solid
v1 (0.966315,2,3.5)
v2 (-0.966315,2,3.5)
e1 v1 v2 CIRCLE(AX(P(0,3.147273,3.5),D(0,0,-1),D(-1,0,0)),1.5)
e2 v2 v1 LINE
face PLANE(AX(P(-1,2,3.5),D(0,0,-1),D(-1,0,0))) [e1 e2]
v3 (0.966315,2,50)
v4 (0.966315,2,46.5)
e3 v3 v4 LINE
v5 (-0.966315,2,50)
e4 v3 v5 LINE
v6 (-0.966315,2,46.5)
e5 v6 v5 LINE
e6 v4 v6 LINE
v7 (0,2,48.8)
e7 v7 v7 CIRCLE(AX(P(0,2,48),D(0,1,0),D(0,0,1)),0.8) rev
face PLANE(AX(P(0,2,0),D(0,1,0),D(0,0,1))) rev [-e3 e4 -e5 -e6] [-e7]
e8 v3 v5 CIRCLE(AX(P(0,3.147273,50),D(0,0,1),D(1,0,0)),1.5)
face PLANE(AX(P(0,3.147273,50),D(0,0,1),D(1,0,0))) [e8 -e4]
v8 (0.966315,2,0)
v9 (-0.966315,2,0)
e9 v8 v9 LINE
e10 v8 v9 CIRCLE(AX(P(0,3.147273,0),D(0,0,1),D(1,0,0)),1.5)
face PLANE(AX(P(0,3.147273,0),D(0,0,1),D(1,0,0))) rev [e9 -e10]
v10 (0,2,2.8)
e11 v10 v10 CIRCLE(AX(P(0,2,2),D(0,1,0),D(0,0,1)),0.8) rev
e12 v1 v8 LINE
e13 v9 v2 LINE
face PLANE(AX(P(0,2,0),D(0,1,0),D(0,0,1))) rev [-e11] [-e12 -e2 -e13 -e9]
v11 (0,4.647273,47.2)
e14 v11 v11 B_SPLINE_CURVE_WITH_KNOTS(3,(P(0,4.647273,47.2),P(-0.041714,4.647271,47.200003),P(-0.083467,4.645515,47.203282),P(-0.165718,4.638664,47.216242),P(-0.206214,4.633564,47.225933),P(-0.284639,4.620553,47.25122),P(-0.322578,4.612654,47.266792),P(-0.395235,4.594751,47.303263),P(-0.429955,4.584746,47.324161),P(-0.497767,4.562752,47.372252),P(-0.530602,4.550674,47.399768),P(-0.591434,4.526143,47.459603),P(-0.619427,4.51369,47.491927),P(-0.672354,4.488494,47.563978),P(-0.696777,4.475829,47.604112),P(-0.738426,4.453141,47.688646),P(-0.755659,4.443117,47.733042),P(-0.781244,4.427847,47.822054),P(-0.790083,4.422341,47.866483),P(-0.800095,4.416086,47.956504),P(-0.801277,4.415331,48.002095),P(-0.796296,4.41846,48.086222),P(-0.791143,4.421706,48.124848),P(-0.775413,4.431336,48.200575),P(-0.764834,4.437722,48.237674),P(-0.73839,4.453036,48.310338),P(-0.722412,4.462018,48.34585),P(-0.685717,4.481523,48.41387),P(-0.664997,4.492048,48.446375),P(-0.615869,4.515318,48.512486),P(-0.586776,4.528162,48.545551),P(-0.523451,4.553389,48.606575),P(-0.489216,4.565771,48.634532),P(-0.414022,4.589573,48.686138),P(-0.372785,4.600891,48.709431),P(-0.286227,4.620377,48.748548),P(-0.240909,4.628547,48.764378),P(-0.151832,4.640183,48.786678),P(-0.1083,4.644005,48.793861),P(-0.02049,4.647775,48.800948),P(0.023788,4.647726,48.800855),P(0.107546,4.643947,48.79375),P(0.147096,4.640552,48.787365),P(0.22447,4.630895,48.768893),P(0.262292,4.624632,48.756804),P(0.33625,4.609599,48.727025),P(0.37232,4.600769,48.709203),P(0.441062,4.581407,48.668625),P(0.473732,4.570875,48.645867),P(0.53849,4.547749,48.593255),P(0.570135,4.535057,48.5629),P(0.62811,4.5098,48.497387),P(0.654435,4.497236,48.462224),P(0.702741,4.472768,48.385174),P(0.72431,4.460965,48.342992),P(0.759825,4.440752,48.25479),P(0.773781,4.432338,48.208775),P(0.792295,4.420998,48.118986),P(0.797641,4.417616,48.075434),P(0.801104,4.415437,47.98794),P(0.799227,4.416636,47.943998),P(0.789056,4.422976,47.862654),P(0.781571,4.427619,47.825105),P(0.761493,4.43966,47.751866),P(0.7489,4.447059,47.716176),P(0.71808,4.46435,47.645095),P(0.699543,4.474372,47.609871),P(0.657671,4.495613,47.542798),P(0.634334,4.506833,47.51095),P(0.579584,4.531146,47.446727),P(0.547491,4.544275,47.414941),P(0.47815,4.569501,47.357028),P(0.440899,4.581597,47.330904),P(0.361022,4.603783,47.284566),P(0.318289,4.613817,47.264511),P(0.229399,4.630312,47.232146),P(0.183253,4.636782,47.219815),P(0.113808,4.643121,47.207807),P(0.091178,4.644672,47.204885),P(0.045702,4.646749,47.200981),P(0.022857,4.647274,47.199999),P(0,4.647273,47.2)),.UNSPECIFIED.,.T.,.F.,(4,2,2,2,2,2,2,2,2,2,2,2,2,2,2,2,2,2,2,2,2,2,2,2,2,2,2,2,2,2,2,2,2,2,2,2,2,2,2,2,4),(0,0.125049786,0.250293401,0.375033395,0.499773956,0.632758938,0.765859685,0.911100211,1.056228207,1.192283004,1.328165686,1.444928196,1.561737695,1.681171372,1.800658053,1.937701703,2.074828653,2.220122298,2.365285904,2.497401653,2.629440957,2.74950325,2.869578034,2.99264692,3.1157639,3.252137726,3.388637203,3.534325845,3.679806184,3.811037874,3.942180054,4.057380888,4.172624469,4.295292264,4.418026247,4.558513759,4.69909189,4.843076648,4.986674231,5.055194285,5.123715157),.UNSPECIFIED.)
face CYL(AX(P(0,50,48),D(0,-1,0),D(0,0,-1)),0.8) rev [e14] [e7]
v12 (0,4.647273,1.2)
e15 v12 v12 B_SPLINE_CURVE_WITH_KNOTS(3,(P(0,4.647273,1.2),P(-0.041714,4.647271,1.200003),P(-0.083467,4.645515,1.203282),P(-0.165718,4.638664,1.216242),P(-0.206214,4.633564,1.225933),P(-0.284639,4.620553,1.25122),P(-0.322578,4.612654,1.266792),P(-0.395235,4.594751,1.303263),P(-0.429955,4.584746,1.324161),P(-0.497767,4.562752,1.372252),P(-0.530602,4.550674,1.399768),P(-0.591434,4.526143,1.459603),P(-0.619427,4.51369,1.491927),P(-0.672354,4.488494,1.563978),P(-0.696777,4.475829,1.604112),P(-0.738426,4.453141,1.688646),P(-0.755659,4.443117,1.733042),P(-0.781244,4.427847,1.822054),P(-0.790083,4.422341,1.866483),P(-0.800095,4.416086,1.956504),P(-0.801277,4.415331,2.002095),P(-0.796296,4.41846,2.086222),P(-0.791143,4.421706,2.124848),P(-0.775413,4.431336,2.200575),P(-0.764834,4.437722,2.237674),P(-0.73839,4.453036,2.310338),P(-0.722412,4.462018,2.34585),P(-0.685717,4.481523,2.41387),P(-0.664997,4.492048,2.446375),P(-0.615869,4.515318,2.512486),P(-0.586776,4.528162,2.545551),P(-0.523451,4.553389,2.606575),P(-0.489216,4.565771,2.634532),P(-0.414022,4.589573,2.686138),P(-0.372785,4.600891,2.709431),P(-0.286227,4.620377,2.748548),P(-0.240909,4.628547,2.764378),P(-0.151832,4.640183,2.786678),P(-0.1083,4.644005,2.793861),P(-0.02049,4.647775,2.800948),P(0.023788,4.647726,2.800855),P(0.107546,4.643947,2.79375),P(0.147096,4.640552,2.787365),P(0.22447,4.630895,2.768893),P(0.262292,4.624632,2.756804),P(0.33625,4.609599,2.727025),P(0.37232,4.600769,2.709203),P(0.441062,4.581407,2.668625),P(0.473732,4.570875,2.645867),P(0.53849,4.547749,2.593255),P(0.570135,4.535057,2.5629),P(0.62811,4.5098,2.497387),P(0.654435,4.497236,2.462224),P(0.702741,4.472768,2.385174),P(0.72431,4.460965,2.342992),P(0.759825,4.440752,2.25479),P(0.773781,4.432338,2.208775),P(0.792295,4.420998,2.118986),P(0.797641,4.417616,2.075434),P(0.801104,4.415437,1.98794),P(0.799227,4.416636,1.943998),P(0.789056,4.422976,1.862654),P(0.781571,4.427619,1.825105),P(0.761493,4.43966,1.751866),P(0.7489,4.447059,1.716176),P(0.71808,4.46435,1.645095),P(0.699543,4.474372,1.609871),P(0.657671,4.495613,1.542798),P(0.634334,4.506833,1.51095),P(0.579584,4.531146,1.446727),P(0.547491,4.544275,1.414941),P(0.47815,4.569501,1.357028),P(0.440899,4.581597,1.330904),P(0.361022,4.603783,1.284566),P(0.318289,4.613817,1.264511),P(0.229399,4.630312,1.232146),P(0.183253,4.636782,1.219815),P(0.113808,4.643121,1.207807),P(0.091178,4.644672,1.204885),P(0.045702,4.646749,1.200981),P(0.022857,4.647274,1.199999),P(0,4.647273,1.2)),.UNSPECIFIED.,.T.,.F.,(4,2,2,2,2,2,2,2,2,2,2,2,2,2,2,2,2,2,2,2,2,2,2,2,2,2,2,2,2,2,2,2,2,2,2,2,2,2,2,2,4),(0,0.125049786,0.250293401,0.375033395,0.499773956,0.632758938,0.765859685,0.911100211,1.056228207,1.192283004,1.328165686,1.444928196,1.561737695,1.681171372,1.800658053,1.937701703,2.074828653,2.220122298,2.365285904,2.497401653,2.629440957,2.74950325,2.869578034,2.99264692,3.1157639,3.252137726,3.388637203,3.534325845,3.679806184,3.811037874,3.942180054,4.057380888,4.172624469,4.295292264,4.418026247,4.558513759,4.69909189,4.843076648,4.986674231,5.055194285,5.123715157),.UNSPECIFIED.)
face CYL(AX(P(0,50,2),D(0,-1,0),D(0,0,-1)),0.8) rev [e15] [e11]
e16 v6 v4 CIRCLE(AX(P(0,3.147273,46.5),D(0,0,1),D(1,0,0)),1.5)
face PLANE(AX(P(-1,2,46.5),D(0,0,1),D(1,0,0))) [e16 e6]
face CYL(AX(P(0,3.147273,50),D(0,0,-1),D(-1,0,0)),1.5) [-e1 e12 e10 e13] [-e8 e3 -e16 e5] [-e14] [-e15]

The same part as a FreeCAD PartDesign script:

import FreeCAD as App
import Part
import Sketcher

doc = App.newDocument("Part")
body = doc.addObject("PartDesign::Body", "Body")

# Sketch on XY plane
sketch1 = doc.addObject("Sketcher::SketchObject", "Sketch")
body.addObject(sketch1)
sketch1.AttachmentSupport = (doc.XY_Plane, [""])
sketch1.MapMode = "FlatFace"
sketch1.addGeometry(Part.Circle(App.Vector(0, 3.1, 0), App.Vector(0, 0, 1), 1.5), False)
sketch1.addConstraint(Sketcher.Constraint("PointOnObject", 0, 3, -2))
sketch1.addConstraint(Sketcher.Constraint("Diameter", 0, 3.0))
sketch1.addConstraint(Sketcher.Constraint("DistanceY", -1, 1, 0, 3, 3.147273))
pad1 = doc.addObject("PartDesign::Pad", "Pad")
body.addObject(pad1)
pad1.Profile = sketch1
pad1.Length = 50

# Sketch on XZ plane
sketch2 = doc.addObject("Sketcher::SketchObject", "Sketch001")
body.addObject(sketch2)
sketch2.AttachmentSupport = (doc.XZ_Plane, [""])
sketch2.MapMode = "FlatFace"
sketch2.addGeometry(Part.LineSegment(App.Vector(-1, 46.5, 0), App.Vector(-1, 51, 0)), False)
sketch2.addGeometry(Part.LineSegment(App.Vector(-1, 51, 0), App.Vector(1, 51, 0)), False)
sketch2.addGeometry(Part.LineSegment(App.Vector(1, 51, 0), App.Vector(1, 46.5, 0)), False)
sketch2.addGeometry(Part.LineSegment(App.Vector(1, 46.5, 0), App.Vector(-1, 46.5, 0)), False)
sketch2.addGeometry(Part.LineSegment(App.Vector(-1, -1, 0), App.Vector(-1, 3.5, 0)), False)
sketch2.addGeometry(Part.LineSegment(App.Vector(-1, 3.5, 0), App.Vector(1, 3.5, 0)), False)
sketch2.addGeometry(Part.LineSegment(App.Vector(1, 3.5, 0), App.Vector(1, -1, 0)), False)
sketch2.addGeometry(Part.LineSegment(App.Vector(1, -1, 0), App.Vector(-1, -1, 0)), False)
sketch2.addConstraint(Sketcher.Constraint("Coincident", 0, 2, 1, 1))
sketch2.addConstraint(Sketcher.Constraint("Coincident", 1, 2, 2, 1))
sketch2.addConstraint(Sketcher.Constraint("Coincident", 2, 2, 3, 1))
sketch2.addConstraint(Sketcher.Constraint("Coincident", 3, 2, 0, 1))
sketch2.addConstraint(Sketcher.Constraint("Coincident", 4, 2, 5, 1))
sketch2.addConstraint(Sketcher.Constraint("Coincident", 5, 2, 6, 1))
sketch2.addConstraint(Sketcher.Constraint("Coincident", 6, 2, 7, 1))
sketch2.addConstraint(Sketcher.Constraint("Coincident", 7, 2, 4, 1))
sketch2.addConstraint(Sketcher.Constraint("Vertical", 0))
sketch2.addConstraint(Sketcher.Constraint("Horizontal", 1))
sketch2.addConstraint(Sketcher.Constraint("Vertical", 2))
sketch2.addConstraint(Sketcher.Constraint("Horizontal", 3))
sketch2.addConstraint(Sketcher.Constraint("Vertical", 4))
sketch2.addConstraint(Sketcher.Constraint("Horizontal", 5))
sketch2.addConstraint(Sketcher.Constraint("Vertical", 6))
sketch2.addConstraint(Sketcher.Constraint("Horizontal", 7))
sketch2.addConstraint(Sketcher.Constraint("Vertical", 3, 2, 4, 2))
sketch2.addConstraint(Sketcher.Constraint("Vertical", 2, 2, 5, 2))
sketch2.addConstraint(Sketcher.Constraint("Equal", 2, 4))
sketch2.addConstraint(Sketcher.Constraint("DistanceX", 1, 1, 1, 2, 2.0))
sketch2.addConstraint(Sketcher.Constraint("DistanceY", 0, 1, 0, 2, 4.5))
sketch2.addConstraint(Sketcher.Constraint("DistanceX", 0, 2, -1, 1, 1.0))
sketch2.addConstraint(Sketcher.Constraint("DistanceY", -1, 1, 0, 2, 51.0))
sketch2.addConstraint(Sketcher.Constraint("DistanceY", 6, 2, -1, 1, 1.0))
pocket1 = doc.addObject("PartDesign::Pocket", "Pocket")
body.addObject(pocket1)
pocket1.Profile = sketch2
pocket1.Type = "TwoLengths"
pocket1.Length = 2
pocket1.Length2 = 50

# Sketch on XZ plane
sketch3 = doc.addObject("Sketcher::SketchObject", "Sketch002")
body.addObject(sketch3)
sketch3.AttachmentSupport = (doc.XZ_Plane, [""])
sketch3.MapMode = "FlatFace"
sketch3.addGeometry(Part.Circle(App.Vector(0, 48, 0), App.Vector(0, 0, 1), 0.8), False)
sketch3.addGeometry(Part.Circle(App.Vector(0, 2, 0), App.Vector(0, 0, 1), 0.8), False)
sketch3.addConstraint(Sketcher.Constraint("Equal", 0, 1))
sketch3.addConstraint(Sketcher.Constraint("PointOnObject", 0, 3, -2))
sketch3.addConstraint(Sketcher.Constraint("PointOnObject", 1, 3, -2))
sketch3.addConstraint(Sketcher.Constraint("Diameter", 0, 1.6))
sketch3.addConstraint(Sketcher.Constraint("DistanceY", -1, 1, 0, 3, 48.0))
sketch3.addConstraint(Sketcher.Constraint("DistanceY", -1, 1, 1, 3, 2.0))
pocket2 = doc.addObject("PartDesign::Pocket", "Pocket001")
body.addObject(pocket2)
pocket2.Profile = sketch3
pocket2.Type = "ThroughAll"
pocket2.Midplane = True

doc.recompute()
